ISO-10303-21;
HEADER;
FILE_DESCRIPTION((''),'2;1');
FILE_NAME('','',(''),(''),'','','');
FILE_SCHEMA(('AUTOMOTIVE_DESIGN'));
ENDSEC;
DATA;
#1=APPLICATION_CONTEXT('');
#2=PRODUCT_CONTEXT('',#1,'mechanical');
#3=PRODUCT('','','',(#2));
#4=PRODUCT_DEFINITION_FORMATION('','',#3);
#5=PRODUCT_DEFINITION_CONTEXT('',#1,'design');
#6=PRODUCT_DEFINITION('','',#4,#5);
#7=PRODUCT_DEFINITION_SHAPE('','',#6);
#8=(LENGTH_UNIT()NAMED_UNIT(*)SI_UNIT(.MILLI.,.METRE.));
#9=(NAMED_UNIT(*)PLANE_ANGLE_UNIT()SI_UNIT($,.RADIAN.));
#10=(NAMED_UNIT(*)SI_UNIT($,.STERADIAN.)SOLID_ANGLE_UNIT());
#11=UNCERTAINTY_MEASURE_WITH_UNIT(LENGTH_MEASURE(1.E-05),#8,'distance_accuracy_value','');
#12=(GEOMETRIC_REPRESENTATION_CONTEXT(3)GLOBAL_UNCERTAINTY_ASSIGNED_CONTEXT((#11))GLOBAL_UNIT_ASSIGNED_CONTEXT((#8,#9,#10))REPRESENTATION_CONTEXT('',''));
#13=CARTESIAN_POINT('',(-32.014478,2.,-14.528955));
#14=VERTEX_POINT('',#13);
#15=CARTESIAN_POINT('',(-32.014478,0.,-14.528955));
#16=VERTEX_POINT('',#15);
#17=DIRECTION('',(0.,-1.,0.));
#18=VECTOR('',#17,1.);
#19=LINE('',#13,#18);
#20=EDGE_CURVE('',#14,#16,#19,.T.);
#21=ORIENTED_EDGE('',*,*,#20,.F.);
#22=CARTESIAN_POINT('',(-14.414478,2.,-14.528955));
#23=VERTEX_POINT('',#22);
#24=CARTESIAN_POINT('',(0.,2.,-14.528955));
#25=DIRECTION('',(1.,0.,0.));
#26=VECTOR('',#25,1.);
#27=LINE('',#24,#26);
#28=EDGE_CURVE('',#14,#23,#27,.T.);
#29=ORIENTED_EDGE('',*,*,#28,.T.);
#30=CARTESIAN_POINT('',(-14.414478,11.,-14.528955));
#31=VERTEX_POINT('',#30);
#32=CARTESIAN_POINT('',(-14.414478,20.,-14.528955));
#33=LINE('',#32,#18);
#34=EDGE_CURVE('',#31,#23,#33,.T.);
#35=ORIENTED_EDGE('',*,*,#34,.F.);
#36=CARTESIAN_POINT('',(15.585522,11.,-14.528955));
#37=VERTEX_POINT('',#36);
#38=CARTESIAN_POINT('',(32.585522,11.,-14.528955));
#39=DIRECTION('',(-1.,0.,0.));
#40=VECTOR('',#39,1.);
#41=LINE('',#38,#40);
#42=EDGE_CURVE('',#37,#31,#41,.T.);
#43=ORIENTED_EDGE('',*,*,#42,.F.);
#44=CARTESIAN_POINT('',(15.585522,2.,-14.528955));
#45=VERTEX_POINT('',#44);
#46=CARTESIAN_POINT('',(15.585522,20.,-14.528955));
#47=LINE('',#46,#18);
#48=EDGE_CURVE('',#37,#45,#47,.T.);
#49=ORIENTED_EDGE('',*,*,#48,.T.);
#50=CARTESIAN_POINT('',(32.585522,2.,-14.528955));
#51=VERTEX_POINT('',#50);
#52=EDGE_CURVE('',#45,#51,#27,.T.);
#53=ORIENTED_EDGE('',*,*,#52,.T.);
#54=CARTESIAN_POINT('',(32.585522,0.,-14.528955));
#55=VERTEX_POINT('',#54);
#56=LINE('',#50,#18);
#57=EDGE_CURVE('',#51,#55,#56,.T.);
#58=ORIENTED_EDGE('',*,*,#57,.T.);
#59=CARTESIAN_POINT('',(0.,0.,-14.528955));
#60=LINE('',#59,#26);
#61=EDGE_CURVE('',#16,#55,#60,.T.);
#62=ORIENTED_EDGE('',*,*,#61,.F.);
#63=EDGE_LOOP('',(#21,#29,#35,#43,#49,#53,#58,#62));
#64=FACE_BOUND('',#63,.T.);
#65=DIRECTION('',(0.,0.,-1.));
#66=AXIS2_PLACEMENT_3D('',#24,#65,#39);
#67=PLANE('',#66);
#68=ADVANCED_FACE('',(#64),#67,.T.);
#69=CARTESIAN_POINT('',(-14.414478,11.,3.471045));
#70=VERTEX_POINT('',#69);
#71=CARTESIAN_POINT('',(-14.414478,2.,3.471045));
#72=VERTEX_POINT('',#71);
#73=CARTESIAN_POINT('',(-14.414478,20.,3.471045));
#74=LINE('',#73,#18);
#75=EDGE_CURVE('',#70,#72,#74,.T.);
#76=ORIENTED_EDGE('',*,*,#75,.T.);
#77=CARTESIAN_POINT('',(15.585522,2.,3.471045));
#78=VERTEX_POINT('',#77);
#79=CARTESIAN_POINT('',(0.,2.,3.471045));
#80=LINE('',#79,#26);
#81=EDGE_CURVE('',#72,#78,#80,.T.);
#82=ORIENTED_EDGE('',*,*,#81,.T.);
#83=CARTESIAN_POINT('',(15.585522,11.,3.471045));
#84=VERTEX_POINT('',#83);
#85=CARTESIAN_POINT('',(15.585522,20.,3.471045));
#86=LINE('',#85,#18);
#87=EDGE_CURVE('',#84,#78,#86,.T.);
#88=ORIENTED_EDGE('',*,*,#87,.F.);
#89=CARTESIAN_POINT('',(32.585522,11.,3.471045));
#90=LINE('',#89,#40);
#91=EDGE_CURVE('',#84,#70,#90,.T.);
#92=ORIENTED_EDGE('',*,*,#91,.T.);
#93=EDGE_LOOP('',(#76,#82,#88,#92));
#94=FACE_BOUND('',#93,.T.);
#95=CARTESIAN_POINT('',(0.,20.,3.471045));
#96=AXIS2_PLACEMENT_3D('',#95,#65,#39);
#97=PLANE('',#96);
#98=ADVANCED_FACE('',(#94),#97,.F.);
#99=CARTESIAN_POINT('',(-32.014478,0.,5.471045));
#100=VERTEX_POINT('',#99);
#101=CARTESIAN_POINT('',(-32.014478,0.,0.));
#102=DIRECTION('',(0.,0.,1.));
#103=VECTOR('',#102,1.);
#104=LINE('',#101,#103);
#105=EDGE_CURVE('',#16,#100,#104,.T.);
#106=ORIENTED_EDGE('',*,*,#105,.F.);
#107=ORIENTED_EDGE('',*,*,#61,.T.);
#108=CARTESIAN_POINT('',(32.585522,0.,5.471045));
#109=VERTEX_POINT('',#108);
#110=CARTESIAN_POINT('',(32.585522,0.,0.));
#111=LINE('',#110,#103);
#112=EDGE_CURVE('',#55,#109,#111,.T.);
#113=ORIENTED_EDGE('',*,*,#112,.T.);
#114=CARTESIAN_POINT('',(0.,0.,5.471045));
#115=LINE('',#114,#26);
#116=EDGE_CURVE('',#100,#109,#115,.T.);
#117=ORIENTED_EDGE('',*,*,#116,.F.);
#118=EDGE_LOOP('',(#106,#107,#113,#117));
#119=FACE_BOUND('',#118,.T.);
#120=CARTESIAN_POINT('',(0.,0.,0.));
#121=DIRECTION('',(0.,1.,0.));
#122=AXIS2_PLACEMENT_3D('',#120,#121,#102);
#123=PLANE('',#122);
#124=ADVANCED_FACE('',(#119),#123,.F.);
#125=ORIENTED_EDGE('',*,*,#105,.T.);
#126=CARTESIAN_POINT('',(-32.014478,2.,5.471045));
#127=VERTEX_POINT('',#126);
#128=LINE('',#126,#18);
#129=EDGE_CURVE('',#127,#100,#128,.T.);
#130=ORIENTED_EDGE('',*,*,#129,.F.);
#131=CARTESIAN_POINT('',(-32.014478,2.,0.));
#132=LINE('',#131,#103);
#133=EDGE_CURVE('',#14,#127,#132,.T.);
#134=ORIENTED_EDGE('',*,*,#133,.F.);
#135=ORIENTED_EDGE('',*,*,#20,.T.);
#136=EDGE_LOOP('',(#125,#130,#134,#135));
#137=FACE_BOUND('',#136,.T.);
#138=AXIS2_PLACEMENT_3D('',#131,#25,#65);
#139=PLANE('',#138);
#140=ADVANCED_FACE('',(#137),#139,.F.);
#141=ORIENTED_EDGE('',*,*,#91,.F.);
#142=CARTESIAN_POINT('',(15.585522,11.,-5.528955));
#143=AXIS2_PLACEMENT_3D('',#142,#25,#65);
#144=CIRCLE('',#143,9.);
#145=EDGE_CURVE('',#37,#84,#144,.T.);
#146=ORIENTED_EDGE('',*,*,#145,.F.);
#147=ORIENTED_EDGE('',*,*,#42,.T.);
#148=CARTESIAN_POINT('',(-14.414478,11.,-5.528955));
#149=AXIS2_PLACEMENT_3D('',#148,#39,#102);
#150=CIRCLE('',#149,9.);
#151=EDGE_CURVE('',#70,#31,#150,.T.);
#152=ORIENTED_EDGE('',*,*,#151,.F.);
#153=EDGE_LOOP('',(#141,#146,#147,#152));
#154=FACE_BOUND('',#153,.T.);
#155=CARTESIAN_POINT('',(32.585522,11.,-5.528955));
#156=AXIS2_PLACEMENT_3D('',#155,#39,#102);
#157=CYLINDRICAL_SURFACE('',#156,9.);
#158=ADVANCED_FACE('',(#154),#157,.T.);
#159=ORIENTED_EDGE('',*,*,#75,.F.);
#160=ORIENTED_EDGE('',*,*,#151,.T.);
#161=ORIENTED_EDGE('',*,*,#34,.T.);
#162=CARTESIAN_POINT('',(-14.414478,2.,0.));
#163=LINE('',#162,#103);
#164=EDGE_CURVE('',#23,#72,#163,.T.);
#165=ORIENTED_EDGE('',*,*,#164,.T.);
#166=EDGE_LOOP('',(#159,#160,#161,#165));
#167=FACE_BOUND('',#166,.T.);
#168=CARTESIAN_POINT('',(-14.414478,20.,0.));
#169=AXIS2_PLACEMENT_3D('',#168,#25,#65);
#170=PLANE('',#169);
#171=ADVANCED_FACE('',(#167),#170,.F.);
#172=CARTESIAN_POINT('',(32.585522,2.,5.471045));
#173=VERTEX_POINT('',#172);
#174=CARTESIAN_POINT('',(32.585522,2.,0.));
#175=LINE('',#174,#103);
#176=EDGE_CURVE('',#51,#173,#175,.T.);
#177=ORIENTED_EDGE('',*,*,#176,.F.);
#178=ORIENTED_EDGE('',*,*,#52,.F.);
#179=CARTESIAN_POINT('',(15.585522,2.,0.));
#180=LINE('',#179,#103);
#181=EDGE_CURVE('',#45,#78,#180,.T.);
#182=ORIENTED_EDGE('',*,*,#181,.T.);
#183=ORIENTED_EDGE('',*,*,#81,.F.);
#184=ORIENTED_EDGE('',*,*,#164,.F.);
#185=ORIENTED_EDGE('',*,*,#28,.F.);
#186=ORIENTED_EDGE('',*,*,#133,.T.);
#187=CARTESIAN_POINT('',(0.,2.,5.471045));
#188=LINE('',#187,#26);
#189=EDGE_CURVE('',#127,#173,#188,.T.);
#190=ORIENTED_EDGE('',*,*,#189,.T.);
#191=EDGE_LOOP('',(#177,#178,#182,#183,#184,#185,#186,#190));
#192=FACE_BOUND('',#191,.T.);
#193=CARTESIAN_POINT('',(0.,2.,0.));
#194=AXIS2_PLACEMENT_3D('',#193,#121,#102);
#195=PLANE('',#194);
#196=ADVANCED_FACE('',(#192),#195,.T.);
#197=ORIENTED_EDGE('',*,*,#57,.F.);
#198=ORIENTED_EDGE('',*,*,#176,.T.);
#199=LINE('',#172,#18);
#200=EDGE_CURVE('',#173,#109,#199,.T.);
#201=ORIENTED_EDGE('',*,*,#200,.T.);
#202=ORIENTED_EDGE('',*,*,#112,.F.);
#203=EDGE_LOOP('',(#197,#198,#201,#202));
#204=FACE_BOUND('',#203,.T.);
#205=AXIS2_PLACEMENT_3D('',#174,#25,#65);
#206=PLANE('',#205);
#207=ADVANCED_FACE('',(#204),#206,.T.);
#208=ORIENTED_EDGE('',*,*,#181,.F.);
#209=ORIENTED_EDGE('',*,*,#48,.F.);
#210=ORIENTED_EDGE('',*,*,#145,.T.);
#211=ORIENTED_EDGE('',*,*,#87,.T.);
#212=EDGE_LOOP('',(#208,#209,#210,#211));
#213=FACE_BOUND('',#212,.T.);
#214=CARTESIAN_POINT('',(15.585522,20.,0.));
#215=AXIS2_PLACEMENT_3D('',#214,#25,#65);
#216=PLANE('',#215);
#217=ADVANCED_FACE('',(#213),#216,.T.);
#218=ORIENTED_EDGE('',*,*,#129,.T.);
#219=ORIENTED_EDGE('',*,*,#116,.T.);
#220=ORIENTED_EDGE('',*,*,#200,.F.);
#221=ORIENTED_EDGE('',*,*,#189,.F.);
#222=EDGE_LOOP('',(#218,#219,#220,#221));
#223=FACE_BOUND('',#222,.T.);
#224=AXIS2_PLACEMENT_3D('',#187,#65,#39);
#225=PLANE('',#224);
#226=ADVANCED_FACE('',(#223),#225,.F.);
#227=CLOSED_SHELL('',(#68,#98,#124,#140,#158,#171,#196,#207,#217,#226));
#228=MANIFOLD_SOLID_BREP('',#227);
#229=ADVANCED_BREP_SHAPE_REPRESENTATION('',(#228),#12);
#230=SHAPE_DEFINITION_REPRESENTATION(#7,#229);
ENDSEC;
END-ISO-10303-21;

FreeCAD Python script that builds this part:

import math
import FreeCAD as App
import Part
import Sketcher
from FreeCAD import Vector


def add_polygon(sketch, points):
    """Adds a closed chain of lines whose ends are joined by coincident constraints."""
    first, n = sketch.GeometryCount, len(points)
    for a, b in zip(points, points[1:] + points[:1]):
        sketch.addGeometry(Part.LineSegment(App.Vector(*a, 0), App.Vector(*b, 0)), False)
    for i in range(n):
        sketch.addConstraint(Sketcher.Constraint("Coincident", first + i, 2, first + (i + 1) % n, 1))

doc = App.newDocument("Part")
body = doc.addObject("PartDesign::Body", "Body")

sketch1 = body.newObject("Sketcher::SketchObject", "Sketch")
sketch1.AttachmentSupport = (doc.getObject("XZ_Plane"), [""])
sketch1.MapMode = "FlatFace"
add_polygon(sketch1, [(-14.414478, -14.528955), (-32.014478, -14.528955), (-32.014478, 5.471045), (32.585522, 5.471045), (32.585522, -14.528955), (15.585522, -14.528955), (15.585522, 3.471045), (-14.414478, 3.471045)])
sketch1.addConstraint([
    Sketcher.Constraint("Horizontal", 0),
    Sketcher.Constraint("Vertical", 1),
    Sketcher.Constraint("Horizontal", 2),
    Sketcher.Constraint("Vertical", 3),
    Sketcher.Constraint("Horizontal", 4),
    Sketcher.Constraint("Vertical", 5),
    Sketcher.Constraint("Horizontal", 6),
    Sketcher.Constraint("Vertical", 7),
    Sketcher.Constraint("Horizontal", 0, 2, 3, 2),
    Sketcher.Constraint("DistanceX", 4, 2, 4, 1, 17.0),
    Sketcher.Constraint("DistanceX", 6, 2, 6, 1, 30.0),
    Sketcher.Constraint("DistanceY", 1, 1, 1, 2, 20.0),
    Sketcher.Constraint("DistanceY", 5, 1, 5, 2, 18.0),
    Sketcher.Constraint("DistanceX", 0, 2, 0, 1, 17.6),
    Sketcher.Constraint("DistanceX", 0, 2, -1, 1, 32.014478),
    Sketcher.Constraint("DistanceY", 0, 2, -1, 1, 14.528955),
])
pad1 = body.newObject("PartDesign::Pad", "Pad")
pad1.Profile = sketch1
pad1.Length = 2
pad1.Reversed = True

sketch2 = body.newObject("Sketcher::SketchObject", "Sketch001")
sketch2.AttachmentSupport = (doc.getObject("XZ_Plane"), [""])
sketch2.MapMode = "FlatFace"
add_polygon(sketch2, [(-14.414478, -14.528955), (-14.414478, 3.471045), (15.585522, 3.471045), (15.585522, -14.528955)])
sketch2.addConstraint([
    Sketcher.Constraint("Vertical", 0),
    Sketcher.Constraint("Horizontal", 1),
    Sketcher.Constraint("Vertical", 2),
    Sketcher.Constraint("Horizontal", 3),
    Sketcher.Constraint("DistanceX", 1, 1, 1, 2, 30.0),
    Sketcher.Constraint("DistanceY", 0, 1, 0, 2, 18.0),
    Sketcher.Constraint("DistanceX", 0, 2, -1, 1, 14.414478),
    Sketcher.Constraint("DistanceY", -1, 1, 0, 2, 3.471045),
])
pad2 = body.newObject("PartDesign::Pad", "Pad001")
pad2.Profile = sketch2
pad2.Length = 20
pad2.Reversed = True

sketch3 = body.newObject("Sketcher::SketchObject", "Sketch002")
sketch3.AttachmentSupport = (doc.getObject("YZ_Plane"), [""])
sketch3.MapMode = "FlatFace"
sketch3.AttachmentOffset = App.Placement(Vector(0, 0, -14.414478), App.Rotation())
sketch3.addGeometry([
    Part.LineSegment(Vector(20, -14.528955, 0), Vector(11, -14.528955, 0)),
    Part.ArcOfCircle(Part.Circle(Vector(11, -5.528955, 0), Vector(0, 0, 1), 9), math.radians(-90), math.radians(0)),
    Part.LineSegment(Vector(20, -5.528955, 0), Vector(20, -14.528955, 0)),
    Part.ArcOfCircle(Part.Circle(Vector(11, -5.528955, 0), Vector(0, 0, 1), 9), math.radians(0), math.radians(90)),
    Part.LineSegment(Vector(11, 3.471045, 0), Vector(20, 3.471045, 0)),
    Part.LineSegment(Vector(20, 3.471045, 0), Vector(20, -5.528955, 0)),
], False)
sketch3.addConstraint([
    Sketcher.Constraint("Tangent", 0, 2, 1, 1),
    Sketcher.Constraint("Tangent", 1, 2, 2, 1),
    Sketcher.Constraint("Coincident", 2, 2, 0, 1),
    Sketcher.Constraint("Tangent", 3, 2, 4, 1),
    Sketcher.Constraint("Coincident", 4, 2, 5, 1),
    Sketcher.Constraint("Tangent", 5, 2, 3, 1),
    Sketcher.Constraint("Horizontal", 0),
    Sketcher.Constraint("Vertical", 2),
    Sketcher.Constraint("Horizontal", 4),
    Sketcher.Constraint("Vertical", 5),
    Sketcher.Constraint("Coincident", 3, 3, 1, 3),
    Sketcher.Constraint("Equal", 1, 3),
    Sketcher.Constraint("Radius", 1, 9.0),
    Sketcher.Constraint("DistanceX", -1, 1, 1, 3, 11.0),
    Sketcher.Constraint("DistanceY", 1, 3, -1, 1, 5.528955),
])
pocket1 = body.newObject("PartDesign::Pocket", "Pocket")
pocket1.Profile = sketch3
pocket1.Type = "ThroughAll"
pocket1.Reversed = True

doc.recompute()
